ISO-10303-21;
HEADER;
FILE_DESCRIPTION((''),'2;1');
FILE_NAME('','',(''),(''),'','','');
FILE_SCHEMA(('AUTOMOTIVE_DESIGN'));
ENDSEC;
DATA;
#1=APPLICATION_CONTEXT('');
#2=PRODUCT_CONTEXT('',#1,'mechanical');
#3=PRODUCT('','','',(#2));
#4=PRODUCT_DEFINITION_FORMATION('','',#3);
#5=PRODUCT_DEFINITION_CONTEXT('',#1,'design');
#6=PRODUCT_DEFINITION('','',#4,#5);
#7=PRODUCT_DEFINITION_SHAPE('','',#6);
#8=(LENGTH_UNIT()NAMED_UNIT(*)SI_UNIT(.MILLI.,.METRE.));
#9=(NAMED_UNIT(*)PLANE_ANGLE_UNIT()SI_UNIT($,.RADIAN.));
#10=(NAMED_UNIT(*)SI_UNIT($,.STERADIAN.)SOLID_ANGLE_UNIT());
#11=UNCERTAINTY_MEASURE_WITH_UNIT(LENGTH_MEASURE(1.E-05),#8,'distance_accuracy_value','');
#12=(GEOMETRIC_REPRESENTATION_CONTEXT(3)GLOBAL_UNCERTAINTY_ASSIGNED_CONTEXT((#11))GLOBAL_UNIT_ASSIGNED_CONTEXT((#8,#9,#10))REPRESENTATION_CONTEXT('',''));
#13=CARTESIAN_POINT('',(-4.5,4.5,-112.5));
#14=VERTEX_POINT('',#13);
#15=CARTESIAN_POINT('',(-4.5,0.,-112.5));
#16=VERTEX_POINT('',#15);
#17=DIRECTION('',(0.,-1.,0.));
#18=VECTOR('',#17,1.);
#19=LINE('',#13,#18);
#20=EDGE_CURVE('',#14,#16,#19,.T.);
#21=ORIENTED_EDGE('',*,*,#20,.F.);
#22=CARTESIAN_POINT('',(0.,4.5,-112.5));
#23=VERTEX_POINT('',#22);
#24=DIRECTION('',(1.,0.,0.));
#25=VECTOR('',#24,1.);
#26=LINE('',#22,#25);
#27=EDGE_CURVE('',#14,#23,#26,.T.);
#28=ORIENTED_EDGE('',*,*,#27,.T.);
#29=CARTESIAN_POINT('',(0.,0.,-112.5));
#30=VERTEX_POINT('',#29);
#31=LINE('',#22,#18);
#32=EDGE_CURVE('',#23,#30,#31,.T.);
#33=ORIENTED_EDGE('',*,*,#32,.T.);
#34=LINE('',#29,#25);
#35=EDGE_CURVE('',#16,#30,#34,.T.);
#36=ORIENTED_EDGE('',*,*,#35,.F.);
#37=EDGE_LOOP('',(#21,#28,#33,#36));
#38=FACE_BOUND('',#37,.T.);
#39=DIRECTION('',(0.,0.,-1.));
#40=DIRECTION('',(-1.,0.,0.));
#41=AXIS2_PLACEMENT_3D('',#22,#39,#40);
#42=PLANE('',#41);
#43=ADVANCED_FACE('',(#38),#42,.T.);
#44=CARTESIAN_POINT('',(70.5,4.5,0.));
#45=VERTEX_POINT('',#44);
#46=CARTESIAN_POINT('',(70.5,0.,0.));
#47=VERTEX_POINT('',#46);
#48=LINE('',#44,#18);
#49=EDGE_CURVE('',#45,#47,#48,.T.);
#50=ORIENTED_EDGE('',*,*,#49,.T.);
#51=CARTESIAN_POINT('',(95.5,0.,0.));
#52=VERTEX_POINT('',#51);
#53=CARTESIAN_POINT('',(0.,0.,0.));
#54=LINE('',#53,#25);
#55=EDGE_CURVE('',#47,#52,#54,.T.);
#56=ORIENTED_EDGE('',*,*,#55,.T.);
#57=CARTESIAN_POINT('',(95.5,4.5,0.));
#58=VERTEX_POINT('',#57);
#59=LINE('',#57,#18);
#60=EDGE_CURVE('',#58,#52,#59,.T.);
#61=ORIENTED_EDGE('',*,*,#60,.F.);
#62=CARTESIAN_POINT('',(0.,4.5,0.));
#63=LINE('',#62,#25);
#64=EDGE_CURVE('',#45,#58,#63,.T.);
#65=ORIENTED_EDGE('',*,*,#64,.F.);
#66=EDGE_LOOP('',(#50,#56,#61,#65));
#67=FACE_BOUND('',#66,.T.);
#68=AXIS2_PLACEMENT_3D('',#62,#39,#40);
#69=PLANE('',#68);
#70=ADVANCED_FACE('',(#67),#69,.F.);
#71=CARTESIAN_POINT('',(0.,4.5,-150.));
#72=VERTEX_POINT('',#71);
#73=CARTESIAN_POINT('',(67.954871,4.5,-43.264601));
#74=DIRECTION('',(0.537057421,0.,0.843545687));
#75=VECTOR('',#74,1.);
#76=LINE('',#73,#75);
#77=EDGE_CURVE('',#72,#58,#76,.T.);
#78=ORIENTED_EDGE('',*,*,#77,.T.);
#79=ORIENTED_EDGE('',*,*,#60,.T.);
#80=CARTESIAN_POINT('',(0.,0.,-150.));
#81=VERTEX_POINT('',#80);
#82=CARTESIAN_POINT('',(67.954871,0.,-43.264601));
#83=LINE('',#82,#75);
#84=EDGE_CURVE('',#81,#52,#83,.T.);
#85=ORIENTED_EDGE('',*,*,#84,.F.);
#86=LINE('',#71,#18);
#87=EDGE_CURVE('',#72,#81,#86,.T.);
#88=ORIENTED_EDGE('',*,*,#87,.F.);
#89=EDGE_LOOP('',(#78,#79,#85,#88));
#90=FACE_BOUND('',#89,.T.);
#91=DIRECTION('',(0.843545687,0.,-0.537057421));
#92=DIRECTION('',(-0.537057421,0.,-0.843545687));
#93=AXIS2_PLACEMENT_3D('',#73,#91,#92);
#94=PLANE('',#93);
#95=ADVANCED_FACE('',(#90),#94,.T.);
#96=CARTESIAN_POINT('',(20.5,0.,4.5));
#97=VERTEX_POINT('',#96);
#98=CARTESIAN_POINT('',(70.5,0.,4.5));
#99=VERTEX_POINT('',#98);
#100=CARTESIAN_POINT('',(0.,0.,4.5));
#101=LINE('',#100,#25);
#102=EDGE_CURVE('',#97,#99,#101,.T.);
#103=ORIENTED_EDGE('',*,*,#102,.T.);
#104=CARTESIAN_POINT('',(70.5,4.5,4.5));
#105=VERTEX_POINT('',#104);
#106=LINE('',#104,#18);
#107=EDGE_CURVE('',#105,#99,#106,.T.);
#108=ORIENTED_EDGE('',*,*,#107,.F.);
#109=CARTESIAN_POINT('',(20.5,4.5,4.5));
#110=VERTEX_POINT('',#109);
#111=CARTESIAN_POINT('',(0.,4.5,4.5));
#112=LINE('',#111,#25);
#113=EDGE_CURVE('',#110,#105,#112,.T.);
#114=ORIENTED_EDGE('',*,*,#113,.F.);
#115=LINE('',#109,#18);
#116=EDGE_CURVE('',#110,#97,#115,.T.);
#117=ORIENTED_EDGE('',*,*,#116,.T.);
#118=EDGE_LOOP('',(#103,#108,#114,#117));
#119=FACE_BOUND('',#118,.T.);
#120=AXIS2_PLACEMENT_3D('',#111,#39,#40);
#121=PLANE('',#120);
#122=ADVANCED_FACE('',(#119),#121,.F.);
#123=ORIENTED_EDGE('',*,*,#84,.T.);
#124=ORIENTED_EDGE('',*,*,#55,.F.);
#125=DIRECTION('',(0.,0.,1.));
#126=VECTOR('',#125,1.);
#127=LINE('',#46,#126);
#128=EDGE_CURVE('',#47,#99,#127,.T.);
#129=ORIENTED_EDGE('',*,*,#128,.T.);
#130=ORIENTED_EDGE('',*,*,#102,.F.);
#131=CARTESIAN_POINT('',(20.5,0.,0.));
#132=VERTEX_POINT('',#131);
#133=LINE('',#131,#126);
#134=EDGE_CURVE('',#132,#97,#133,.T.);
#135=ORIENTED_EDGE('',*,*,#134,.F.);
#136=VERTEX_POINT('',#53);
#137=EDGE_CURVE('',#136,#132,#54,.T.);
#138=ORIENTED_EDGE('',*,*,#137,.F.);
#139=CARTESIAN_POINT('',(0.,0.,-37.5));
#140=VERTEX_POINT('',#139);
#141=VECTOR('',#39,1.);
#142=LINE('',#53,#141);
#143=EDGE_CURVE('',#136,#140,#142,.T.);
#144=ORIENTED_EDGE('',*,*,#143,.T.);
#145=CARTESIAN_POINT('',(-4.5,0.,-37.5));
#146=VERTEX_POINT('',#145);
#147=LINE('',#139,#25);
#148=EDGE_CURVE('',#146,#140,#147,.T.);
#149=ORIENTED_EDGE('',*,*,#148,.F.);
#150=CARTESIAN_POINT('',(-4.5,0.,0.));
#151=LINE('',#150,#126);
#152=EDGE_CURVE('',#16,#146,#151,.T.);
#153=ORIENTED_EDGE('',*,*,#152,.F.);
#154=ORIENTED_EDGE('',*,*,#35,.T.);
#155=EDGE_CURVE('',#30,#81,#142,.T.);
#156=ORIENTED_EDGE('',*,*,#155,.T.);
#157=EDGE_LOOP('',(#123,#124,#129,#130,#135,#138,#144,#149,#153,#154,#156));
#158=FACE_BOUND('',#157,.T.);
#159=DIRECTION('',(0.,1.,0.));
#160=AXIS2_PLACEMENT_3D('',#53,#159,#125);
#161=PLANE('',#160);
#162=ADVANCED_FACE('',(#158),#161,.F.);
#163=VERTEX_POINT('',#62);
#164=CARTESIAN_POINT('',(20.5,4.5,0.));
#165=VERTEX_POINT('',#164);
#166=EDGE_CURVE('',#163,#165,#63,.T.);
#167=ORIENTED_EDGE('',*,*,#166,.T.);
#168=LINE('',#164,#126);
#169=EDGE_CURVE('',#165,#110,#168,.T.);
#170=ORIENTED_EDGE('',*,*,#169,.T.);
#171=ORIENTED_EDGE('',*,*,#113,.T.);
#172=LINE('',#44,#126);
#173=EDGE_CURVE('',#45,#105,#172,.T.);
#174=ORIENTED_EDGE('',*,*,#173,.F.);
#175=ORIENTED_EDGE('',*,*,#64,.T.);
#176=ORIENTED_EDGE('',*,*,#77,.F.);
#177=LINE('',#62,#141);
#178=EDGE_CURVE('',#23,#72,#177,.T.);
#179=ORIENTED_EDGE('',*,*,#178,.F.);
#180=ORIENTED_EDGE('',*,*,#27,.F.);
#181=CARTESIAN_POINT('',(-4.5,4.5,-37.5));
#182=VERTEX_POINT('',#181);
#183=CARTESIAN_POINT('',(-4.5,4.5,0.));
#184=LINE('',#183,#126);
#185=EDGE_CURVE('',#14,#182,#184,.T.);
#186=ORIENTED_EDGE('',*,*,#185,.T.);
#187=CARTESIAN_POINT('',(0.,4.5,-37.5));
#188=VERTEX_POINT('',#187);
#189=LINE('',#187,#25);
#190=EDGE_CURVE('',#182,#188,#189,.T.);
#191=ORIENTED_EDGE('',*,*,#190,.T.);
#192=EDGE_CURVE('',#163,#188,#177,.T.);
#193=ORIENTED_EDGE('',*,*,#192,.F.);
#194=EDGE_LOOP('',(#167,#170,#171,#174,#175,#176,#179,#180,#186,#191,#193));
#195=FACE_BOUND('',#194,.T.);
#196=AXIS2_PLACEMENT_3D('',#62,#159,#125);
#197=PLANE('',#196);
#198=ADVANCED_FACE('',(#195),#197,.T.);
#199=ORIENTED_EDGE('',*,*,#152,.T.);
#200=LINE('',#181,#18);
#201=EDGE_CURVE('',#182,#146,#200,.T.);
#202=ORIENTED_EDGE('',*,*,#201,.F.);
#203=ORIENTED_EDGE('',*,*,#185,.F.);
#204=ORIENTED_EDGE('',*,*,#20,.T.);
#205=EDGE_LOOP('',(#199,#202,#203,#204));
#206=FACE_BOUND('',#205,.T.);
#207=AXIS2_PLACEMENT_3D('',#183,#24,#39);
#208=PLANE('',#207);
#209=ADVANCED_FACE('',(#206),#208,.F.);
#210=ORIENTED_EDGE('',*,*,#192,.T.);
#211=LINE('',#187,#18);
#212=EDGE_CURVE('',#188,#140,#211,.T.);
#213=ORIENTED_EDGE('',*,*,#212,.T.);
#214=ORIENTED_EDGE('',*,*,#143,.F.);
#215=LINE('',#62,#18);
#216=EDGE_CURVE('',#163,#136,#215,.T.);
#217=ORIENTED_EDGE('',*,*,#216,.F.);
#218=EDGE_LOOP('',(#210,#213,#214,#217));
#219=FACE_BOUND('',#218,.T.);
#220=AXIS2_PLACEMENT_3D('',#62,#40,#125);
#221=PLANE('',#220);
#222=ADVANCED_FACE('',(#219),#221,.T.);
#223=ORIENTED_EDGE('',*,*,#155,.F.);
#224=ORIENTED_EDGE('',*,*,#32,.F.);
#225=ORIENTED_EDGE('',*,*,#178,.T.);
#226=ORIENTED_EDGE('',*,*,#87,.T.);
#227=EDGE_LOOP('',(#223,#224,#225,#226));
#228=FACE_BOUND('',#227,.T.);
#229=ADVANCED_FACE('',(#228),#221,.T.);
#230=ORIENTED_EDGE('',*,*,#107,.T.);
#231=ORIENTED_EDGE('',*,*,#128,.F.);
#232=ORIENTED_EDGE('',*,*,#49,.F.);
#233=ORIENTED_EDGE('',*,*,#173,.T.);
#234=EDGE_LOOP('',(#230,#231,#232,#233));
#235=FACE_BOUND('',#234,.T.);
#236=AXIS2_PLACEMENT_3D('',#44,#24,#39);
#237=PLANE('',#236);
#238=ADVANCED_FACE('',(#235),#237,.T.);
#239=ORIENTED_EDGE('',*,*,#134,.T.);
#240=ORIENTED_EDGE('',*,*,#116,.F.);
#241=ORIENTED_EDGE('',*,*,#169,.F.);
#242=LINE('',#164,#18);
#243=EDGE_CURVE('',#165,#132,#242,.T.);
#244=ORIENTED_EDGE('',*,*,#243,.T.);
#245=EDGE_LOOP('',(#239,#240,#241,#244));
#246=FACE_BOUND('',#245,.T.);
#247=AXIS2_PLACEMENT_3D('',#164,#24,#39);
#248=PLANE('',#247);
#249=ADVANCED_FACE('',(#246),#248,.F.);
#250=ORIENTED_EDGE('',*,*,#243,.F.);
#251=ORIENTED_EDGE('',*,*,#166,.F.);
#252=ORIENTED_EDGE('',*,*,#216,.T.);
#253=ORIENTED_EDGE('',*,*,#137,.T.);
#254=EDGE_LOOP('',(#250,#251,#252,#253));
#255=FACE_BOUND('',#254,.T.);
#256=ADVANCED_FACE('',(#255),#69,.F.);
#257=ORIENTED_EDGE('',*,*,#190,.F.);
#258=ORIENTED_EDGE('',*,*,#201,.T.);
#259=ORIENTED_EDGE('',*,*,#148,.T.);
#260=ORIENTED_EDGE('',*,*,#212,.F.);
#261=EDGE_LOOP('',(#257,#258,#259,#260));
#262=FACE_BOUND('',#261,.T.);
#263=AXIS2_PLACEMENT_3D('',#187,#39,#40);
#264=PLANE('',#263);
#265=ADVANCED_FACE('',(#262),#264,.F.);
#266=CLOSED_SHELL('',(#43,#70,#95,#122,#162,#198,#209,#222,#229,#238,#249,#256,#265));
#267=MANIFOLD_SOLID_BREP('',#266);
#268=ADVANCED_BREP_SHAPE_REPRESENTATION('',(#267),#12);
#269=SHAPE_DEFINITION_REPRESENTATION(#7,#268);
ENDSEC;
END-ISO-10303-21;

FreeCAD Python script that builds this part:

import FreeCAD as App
import Part
import Sketcher

V = App.Vector


def add_polygon(sketch, points):
    """Adds a closed chain of lines whose ends are joined by coincident constraints."""
    first, n = sketch.GeometryCount, len(points)
    for a, b in zip(points, points[1:] + points[:1]):
        sketch.addGeometry(Part.LineSegment(App.Vector(*a, 0), App.Vector(*b, 0)), False)
    for i in range(n):
        sketch.addConstraint(Sketcher.Constraint("Coincident", first + i, 2, first + (i + 1) % n, 1))

doc = App.newDocument("Part")
body = doc.addObject("PartDesign::Body", "Body")

# Sketch on XZ plane
sketch1 = doc.addObject("Sketcher::SketchObject", "Sketch")
body.addObject(sketch1)
sketch1.AttachmentSupport = (doc.XZ_Plane, [""])
sketch1.MapMode = "FlatFace"
add_polygon(sketch1, [(-4.5, -112.5), (-4.5, -37.5), (0, -37.5), (0, 0), (20.5, 0), (20.5, 4.5), (70.5, 4.5), (70.5, 0), (95.5, 0), (0, -150), (0, -112.5)])  # lines 0-10
sketch1.addConstraint(Sketcher.Constraint("Vertical", 0))
sketch1.addConstraint(Sketcher.Constraint("Horizontal", 1))
sketch1.addConstraint(Sketcher.Constraint("Vertical", 2))
sketch1.addConstraint(Sketcher.Constraint("Horizontal", 3))
sketch1.addConstraint(Sketcher.Constraint("Vertical", 4))
sketch1.addConstraint(Sketcher.Constraint("Horizontal", 5))
sketch1.addConstraint(Sketcher.Constraint("Vertical", 6))
sketch1.addConstraint(Sketcher.Constraint("Horizontal", 7))
sketch1.addConstraint(Sketcher.Constraint("Vertical", 9))
sketch1.addConstraint(Sketcher.Constraint("Horizontal", 10))
sketch1.addConstraint(Sketcher.Constraint("Coincident", 2, 2, -1, 1))
sketch1.addConstraint(Sketcher.Constraint("PointOnObject", 6, 2, -1))
sketch1.addConstraint(Sketcher.Constraint("PointOnObject", 8, 2, -2))
sketch1.addConstraint(Sketcher.Constraint("Equal", 10, 4))
sketch1.addConstraint(Sketcher.Constraint("Equal", 2, 9))
sketch1.addConstraint(Sketcher.Constraint("DistanceX", 5, 1, 5, 2, 50.0))
sketch1.addConstraint(Sketcher.Constraint("DistanceX", 7, 1, 7, 2, 25.0))
sketch1.addConstraint(Sketcher.Constraint("DistanceY", 0, 1, 0, 2, 75.0))
sketch1.addConstraint(Sketcher.Constraint("DistanceX", 1, 1, 1, 2, 4.5))
sketch1.addConstraint(Sketcher.Constraint("DistanceX", 3, 1, 3, 2, 20.5))
sketch1.addConstraint(Sketcher.Constraint("DistanceY", 2, 1, 2, 2, 37.5))
pad1 = doc.addObject("PartDesign::Pad", "Pad")
body.addObject(pad1)
pad1.Profile = sketch1
pad1.Length = 4.5
pad1.Reversed = True

doc.recompute()
